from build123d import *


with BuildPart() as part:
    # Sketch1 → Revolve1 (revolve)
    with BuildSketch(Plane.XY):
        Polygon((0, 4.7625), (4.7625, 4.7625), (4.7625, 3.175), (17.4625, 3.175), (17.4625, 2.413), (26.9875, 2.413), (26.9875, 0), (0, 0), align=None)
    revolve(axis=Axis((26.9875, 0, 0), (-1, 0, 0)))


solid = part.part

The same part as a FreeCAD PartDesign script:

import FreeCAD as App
import Part
import Sketcher
from FreeCAD import Vector
Q = App.Units.Quantity


def add_polygon(sketch, points):
    """Adds a closed chain of lines whose ends are joined by coincident constraints."""
    first, n = sketch.GeometryCount, len(points)
    for a, b in zip(points, points[1:] + points[:1]):
        sketch.addGeometry(Part.LineSegment(App.Vector(*a, 0), App.Vector(*b, 0)), False)
    for i in range(n):
        sketch.addConstraint(Sketcher.Constraint("Coincident", first + i, 2, first + (i + 1) % n, 1))

doc = App.newDocument("Part")
params = doc.addObject("Spreadsheet::Sheet", "Params")
for row, (alias, value) in enumerate([
    ("sketch1_width", "0.5 in"),
    ("sketch1_height", "0.03 in"),
    ("sketch1_width2", "0.1875 in"),
    ("sketch1_width3", "1.0625 in"),
    ("sketch1_height2", "0.095 in"),
    ("revolution_angle", "360 deg"),
], start=1):
    params.set(f"A{row}", alias)
    params.set(f"B{row}", "=" + value)
    params.setAlias(f"B{row}", alias)

body = doc.addObject("PartDesign::Body", "Body")

sketch1 = body.newObject("Sketcher::SketchObject", "Sketch")
sketch1.AttachmentSupport = (doc.getObject("XY_Plane"), [""])
sketch1.MapMode = "FlatFace"
add_polygon(sketch1, [(4.8, 4.8), (0, 4.8), (0, 0), (27, 0), (27, 2.4), (17.5, 2.4), (17.5, 3.2), (4.8, 3.2)])
sketch1.addConstraint(Sketcher.Constraint("Horizontal", 0))
sketch1.addConstraint(Sketcher.Constraint("Vertical", 1))
sketch1.addConstraint(Sketcher.Constraint("Horizontal", 2))
sketch1.addConstraint(Sketcher.Constraint("Vertical", 3))
sketch1.addConstraint(Sketcher.Constraint("Horizontal", 4))
sketch1.addConstraint(Sketcher.Constraint("Vertical", 5))
sketch1.addConstraint(Sketcher.Constraint("Horizontal", 6))
sketch1.addConstraint(Sketcher.Constraint("Vertical", 7))
sketch1.addConstraint(Sketcher.Constraint("Coincident", 1, 2, -1, 1))
sketch1.addConstraint(Sketcher.Constraint("Equal", 0, 1))
sketch1.addConstraint(Sketcher.Constraint("DistanceX", 6, 2, 6, 1, Q("0.5 in")))
sketch1.addConstraint(Sketcher.Constraint("DistanceY", 5, 1, 5, 2, Q("0.03 in")))
sketch1.addConstraint(Sketcher.Constraint("DistanceX", 0, 2, 0, 1, Q("0.1875 in")))
sketch1.addConstraint(Sketcher.Constraint("DistanceX", 2, 1, 2, 2, Q("1.0625 in")))
sketch1.addConstraint(Sketcher.Constraint("DistanceY", 3, 1, 3, 2, Q("0.095 in")))
sketch1.setExpression("Constraints[18]", "Params.sketch1_width")
sketch1.setExpression("Constraints[19]", "Params.sketch1_height")
sketch1.setExpression("Constraints[20]", "Params.sketch1_width2")
sketch1.setExpression("Constraints[21]", "Params.sketch1_width3")
sketch1.setExpression("Constraints[22]", "Params.sketch1_height2")
revolution = body.newObject("PartDesign::Revolution", "Revolution")
revolution.Profile = sketch1
revolution.ReferenceAxis = (sketch1, ["H_Axis"])
revolution.setExpression("Angle", "Params.revolution_angle")

doc.recompute()
